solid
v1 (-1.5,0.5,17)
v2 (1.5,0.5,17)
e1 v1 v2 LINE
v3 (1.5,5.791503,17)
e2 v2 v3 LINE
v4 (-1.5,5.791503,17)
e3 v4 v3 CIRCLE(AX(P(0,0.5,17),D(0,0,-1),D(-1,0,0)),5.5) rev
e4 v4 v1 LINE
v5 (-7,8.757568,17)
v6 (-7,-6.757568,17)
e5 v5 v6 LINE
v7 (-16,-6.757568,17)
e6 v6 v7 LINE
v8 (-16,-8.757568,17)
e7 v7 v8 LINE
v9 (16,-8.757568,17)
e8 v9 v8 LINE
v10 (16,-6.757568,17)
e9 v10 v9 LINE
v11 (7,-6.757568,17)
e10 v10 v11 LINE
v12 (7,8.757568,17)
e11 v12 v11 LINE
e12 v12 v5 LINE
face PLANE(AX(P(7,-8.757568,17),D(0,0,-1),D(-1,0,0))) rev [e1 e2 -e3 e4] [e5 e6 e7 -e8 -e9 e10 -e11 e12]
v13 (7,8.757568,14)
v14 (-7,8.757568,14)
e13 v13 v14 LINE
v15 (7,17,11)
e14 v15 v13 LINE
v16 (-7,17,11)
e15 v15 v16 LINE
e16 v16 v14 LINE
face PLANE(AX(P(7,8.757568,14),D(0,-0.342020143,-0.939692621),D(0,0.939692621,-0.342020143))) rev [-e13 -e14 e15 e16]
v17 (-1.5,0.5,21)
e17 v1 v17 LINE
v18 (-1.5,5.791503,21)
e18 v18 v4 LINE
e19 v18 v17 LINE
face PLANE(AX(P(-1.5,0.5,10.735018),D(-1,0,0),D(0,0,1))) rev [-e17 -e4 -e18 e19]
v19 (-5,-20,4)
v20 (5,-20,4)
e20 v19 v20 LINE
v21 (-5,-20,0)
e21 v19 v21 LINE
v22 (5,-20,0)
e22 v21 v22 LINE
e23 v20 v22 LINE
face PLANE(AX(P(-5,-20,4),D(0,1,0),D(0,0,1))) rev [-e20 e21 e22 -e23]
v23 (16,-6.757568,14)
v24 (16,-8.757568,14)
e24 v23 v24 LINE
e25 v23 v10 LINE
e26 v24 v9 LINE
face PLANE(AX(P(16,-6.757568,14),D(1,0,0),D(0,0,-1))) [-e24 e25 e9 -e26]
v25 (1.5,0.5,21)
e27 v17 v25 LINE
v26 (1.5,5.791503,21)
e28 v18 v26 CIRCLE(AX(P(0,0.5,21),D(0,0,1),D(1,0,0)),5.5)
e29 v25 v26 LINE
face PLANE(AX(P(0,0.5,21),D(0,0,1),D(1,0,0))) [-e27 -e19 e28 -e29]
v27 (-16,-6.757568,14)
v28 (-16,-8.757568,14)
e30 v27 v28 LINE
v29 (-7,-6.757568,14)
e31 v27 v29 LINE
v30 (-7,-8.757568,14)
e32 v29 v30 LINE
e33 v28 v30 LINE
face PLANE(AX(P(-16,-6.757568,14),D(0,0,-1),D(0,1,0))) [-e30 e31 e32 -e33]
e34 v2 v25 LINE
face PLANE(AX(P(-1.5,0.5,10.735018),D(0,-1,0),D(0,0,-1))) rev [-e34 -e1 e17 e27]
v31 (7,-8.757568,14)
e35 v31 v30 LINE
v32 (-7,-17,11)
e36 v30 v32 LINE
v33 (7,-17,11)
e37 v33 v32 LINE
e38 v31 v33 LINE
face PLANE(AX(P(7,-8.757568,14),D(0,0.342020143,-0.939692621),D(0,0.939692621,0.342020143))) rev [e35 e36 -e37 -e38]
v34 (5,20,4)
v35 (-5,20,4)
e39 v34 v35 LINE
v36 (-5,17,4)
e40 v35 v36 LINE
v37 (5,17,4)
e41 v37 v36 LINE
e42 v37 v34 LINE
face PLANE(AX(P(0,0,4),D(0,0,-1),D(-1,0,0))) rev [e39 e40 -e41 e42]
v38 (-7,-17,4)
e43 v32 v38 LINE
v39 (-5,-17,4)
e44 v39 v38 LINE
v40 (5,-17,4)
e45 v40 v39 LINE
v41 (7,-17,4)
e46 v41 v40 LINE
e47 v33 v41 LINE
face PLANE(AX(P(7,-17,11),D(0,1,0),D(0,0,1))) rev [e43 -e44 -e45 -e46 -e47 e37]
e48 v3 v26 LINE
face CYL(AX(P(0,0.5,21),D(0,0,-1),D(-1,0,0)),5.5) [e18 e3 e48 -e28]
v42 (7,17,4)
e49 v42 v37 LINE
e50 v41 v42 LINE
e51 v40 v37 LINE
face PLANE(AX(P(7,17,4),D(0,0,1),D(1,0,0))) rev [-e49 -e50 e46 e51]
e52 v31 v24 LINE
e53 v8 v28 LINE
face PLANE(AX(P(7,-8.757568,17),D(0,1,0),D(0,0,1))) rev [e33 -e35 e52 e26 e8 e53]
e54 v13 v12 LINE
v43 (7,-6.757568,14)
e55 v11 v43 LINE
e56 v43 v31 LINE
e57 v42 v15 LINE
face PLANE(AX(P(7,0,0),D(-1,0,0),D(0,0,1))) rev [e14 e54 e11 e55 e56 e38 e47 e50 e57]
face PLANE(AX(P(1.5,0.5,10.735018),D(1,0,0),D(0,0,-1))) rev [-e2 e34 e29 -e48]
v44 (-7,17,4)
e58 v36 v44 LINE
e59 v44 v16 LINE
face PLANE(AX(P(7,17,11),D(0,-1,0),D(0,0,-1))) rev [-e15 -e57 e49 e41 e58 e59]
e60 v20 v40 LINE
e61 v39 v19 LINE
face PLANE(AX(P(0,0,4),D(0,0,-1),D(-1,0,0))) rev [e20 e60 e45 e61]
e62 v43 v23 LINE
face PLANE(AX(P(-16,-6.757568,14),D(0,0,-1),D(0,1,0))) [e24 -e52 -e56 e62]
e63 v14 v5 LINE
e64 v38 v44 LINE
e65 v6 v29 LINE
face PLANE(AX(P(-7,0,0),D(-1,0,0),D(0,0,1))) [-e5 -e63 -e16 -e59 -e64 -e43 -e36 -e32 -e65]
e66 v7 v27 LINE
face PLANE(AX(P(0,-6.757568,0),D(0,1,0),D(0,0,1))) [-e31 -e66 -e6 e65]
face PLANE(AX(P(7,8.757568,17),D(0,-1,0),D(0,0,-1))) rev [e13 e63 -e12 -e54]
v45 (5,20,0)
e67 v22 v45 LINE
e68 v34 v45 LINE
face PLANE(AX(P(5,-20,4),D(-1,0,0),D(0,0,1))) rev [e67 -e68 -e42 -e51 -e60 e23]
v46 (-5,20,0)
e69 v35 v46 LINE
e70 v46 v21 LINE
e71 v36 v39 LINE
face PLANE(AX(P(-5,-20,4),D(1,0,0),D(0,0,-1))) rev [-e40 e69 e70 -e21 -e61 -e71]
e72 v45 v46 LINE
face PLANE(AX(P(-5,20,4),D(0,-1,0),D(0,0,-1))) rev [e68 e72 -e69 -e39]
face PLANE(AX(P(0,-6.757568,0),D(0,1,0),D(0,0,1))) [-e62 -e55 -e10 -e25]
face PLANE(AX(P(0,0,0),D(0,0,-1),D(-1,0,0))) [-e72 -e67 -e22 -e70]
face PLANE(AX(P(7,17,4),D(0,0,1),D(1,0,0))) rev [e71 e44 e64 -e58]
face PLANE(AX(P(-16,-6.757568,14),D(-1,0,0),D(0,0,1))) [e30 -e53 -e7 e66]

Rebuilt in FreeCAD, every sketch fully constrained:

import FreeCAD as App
import Part
import Sketcher
Q = App.Units.Quantity


def add_polygon(sketch, points):
    """Adds a closed chain of lines whose ends are joined by coincident constraints."""
    first, n = sketch.GeometryCount, len(points)
    for a, b in zip(points, points[1:] + points[:1]):
        sketch.addGeometry(Part.LineSegment(App.Vector(*a, 0), App.Vector(*b, 0)), False)
    for i in range(n):
        sketch.addConstraint(Sketcher.Constraint("Coincident", first + i, 2, first + (i + 1) % n, 1))

doc = App.newDocument("Part")
body = doc.addObject("PartDesign::Body", "Body")

# Sketch on XY plane
sketch1 = body.newObject("Sketcher::SketchObject", "Sketch")
sketch1.AttachmentSupport = (doc.getObject("XY_Plane"), [""])
sketch1.MapMode = "FlatFace"
add_polygon(sketch1, [(-5, 20), (-5, -20), (5, -20), (5, 20)])  # lines 0-3
sketch1.addConstraint(Sketcher.Constraint("Vertical", 0))
sketch1.addConstraint(Sketcher.Constraint("Horizontal", 1))
sketch1.addConstraint(Sketcher.Constraint("Vertical", 2))
sketch1.addConstraint(Sketcher.Constraint("Horizontal", 3))
sketch1.addConstraint(Sketcher.Constraint("Symmetric", 0, 2, 2, 2, -1, 1))
sketch1.addConstraint(Sketcher.Constraint("DistanceX", 1, 1, 1, 2, 10.0))
sketch1.addConstraint(Sketcher.Constraint("DistanceY", 0, 2, 0, 1, 40.0))
pad1 = body.newObject("PartDesign::Pad", "Pad")
pad1.Profile = sketch1
pad1.Length = 4

# Sketch on YZ plane
sketch2 = body.newObject("Sketcher::SketchObject", "Sketch001")
sketch2.AttachmentSupport = (doc.getObject("YZ_Plane"), [""])
sketch2.MapMode = "FlatFace"
add_polygon(sketch2, [(8.8, 17), (-8.8, 17), (-8.8, 14), (-17, 11), (-17, 4), (17, 4), (17, 11), (8.8, 14)])  # lines 0-7
sketch2.addConstraint(Sketcher.Constraint("Horizontal", 0))
sketch2.addConstraint(Sketcher.Constraint("Vertical", 1))
sketch2.addConstraint(Sketcher.Constraint("Vertical", 3))
sketch2.addConstraint(Sketcher.Constraint("Horizontal", 4))
sketch2.addConstraint(Sketcher.Constraint("Vertical", 5))
sketch2.addConstraint(Sketcher.Constraint("Vertical", 7))
sketch2.addConstraint(Sketcher.Constraint("Symmetric", 2, 2, 5, 2, -2))
sketch2.addConstraint(Sketcher.Constraint("Symmetric", 1, 2, 6, 2, -2))
sketch2.addConstraint(Sketcher.Constraint("DistanceX", 4, 1, 4, 2, 34.0))
sketch2.addConstraint(Sketcher.Constraint("DistanceY", 1, 2, 1, 1, 3.0))
sketch2.addConstraint(Sketcher.Constraint("DistanceY", 3, 2, 3, 1, 7.0))
sketch2.addConstraint(Sketcher.Constraint("Angle", 2, Q("-160 deg")))
sketch2.addConstraint(Sketcher.Constraint("DistanceY", -1, 1, 0, 2, 17.0))
sketch2.addConstraint(Sketcher.Constraint("DistanceY", -1, 1, 2, 2, 11.0))
pad2 = body.newObject("PartDesign::Pad", "Pad001")
pad2.Profile = sketch2
pad2.Type = "TwoLengths"
pad2.Length = 7
pad2.Length2 = 7

# Sketch on XZ plane
sketch3 = body.newObject("Sketcher::SketchObject", "Sketch002")
sketch3.AttachmentSupport = (doc.getObject("XZ_Plane"), [""])
sketch3.MapMode = "FlatFace"
sketch3.AttachmentOffset = App.Placement(App.Vector(0, 0, 8.757568), App.Rotation())
add_polygon(sketch3, [(-16, 17), (-16, 14), (16, 14), (16, 17)])  # lines 0-3
sketch3.addConstraint(Sketcher.Constraint("Vertical", 0))
sketch3.addConstraint(Sketcher.Constraint("Horizontal", 1))
sketch3.addConstraint(Sketcher.Constraint("Vertical", 2))
sketch3.addConstraint(Sketcher.Constraint("Horizontal", 3))
sketch3.addConstraint(Sketcher.Constraint("DistanceX", 1, 1, 1, 2, 32.0))
sketch3.addConstraint(Sketcher.Constraint("DistanceY", 0, 2, 0, 1, 3.0))
sketch3.addConstraint(Sketcher.Constraint("DistanceX", 0, 2, -1, 1, 16.0))
sketch3.addConstraint(Sketcher.Constraint("DistanceY", -1, 1, 0, 2, 14.0))
pad3 = body.newObject("PartDesign::Pad", "Pad002")
pad3.Profile = sketch3
pad3.Length = 2
pad3.Reversed = True

# Sketch on XY plane
sketch4 = body.newObject("Sketcher::SketchObject", "Sketch003")
sketch4.AttachmentSupport = (doc.getObject("XY_Plane"), [""])
sketch4.MapMode = "FlatFace"
sketch4.AttachmentOffset = App.Placement(App.Vector(0, 0, 17), App.Rotation())
sketch4.addGeometry(Part.Circle(App.Vector(0, 0, 0), App.Vector(0, 0, 1), 6), False)
sketch4.addConstraint(Sketcher.Constraint("PointOnObject", 0, 3, -2))
sketch4.addConstraint(Sketcher.Constraint("Diameter", 0, 11.0))
sketch4.addConstraint(Sketcher.Constraint("DistanceY", -1, 1, 0, 3, 0.5))
pad4 = body.newObject("PartDesign::Pad", "Pad003")
pad4.Profile = sketch4
pad4.Length = 4

# Sketch on XY plane
sketch5 = body.newObject("Sketcher::SketchObject", "Sketch004")
sketch5.AttachmentSupport = (doc.getObject("XY_Plane"), [""])
sketch5.MapMode = "FlatFace"
sketch5.AttachmentOffset = App.Placement(App.Vector(0, 0, 21), App.Rotation())
add_polygon(sketch5, [(-1.5, 6), (-1.5, 0.5), (1.5, 0.5), (1.5, 6)])  # lines 0-3
sketch5.addConstraint(Sketcher.Constraint("Vertical", 0))
sketch5.addConstraint(Sketcher.Constraint("Horizontal", 1))
sketch5.addConstraint(Sketcher.Constraint("Vertical", 2))
sketch5.addConstraint(Sketcher.Constraint("Horizontal", 3))
sketch5.addConstraint(Sketcher.Constraint("DistanceX", 1, 1, 1, 2, 3.0))
sketch5.addConstraint(Sketcher.Constraint("DistanceY", 0, 2, 0, 1, 5.5))
sketch5.addConstraint(Sketcher.Constraint("DistanceY", -1, 1, 2, 2, 6.0))
sketch5.addConstraint(Sketcher.Constraint("DistanceX", 0, 2, -1, 1, 1.5))
pocket1 = body.newObject("PartDesign::Pocket", "Pocket")
pocket1.Profile = sketch5
pocket1.Length = 4

doc.recompute()
